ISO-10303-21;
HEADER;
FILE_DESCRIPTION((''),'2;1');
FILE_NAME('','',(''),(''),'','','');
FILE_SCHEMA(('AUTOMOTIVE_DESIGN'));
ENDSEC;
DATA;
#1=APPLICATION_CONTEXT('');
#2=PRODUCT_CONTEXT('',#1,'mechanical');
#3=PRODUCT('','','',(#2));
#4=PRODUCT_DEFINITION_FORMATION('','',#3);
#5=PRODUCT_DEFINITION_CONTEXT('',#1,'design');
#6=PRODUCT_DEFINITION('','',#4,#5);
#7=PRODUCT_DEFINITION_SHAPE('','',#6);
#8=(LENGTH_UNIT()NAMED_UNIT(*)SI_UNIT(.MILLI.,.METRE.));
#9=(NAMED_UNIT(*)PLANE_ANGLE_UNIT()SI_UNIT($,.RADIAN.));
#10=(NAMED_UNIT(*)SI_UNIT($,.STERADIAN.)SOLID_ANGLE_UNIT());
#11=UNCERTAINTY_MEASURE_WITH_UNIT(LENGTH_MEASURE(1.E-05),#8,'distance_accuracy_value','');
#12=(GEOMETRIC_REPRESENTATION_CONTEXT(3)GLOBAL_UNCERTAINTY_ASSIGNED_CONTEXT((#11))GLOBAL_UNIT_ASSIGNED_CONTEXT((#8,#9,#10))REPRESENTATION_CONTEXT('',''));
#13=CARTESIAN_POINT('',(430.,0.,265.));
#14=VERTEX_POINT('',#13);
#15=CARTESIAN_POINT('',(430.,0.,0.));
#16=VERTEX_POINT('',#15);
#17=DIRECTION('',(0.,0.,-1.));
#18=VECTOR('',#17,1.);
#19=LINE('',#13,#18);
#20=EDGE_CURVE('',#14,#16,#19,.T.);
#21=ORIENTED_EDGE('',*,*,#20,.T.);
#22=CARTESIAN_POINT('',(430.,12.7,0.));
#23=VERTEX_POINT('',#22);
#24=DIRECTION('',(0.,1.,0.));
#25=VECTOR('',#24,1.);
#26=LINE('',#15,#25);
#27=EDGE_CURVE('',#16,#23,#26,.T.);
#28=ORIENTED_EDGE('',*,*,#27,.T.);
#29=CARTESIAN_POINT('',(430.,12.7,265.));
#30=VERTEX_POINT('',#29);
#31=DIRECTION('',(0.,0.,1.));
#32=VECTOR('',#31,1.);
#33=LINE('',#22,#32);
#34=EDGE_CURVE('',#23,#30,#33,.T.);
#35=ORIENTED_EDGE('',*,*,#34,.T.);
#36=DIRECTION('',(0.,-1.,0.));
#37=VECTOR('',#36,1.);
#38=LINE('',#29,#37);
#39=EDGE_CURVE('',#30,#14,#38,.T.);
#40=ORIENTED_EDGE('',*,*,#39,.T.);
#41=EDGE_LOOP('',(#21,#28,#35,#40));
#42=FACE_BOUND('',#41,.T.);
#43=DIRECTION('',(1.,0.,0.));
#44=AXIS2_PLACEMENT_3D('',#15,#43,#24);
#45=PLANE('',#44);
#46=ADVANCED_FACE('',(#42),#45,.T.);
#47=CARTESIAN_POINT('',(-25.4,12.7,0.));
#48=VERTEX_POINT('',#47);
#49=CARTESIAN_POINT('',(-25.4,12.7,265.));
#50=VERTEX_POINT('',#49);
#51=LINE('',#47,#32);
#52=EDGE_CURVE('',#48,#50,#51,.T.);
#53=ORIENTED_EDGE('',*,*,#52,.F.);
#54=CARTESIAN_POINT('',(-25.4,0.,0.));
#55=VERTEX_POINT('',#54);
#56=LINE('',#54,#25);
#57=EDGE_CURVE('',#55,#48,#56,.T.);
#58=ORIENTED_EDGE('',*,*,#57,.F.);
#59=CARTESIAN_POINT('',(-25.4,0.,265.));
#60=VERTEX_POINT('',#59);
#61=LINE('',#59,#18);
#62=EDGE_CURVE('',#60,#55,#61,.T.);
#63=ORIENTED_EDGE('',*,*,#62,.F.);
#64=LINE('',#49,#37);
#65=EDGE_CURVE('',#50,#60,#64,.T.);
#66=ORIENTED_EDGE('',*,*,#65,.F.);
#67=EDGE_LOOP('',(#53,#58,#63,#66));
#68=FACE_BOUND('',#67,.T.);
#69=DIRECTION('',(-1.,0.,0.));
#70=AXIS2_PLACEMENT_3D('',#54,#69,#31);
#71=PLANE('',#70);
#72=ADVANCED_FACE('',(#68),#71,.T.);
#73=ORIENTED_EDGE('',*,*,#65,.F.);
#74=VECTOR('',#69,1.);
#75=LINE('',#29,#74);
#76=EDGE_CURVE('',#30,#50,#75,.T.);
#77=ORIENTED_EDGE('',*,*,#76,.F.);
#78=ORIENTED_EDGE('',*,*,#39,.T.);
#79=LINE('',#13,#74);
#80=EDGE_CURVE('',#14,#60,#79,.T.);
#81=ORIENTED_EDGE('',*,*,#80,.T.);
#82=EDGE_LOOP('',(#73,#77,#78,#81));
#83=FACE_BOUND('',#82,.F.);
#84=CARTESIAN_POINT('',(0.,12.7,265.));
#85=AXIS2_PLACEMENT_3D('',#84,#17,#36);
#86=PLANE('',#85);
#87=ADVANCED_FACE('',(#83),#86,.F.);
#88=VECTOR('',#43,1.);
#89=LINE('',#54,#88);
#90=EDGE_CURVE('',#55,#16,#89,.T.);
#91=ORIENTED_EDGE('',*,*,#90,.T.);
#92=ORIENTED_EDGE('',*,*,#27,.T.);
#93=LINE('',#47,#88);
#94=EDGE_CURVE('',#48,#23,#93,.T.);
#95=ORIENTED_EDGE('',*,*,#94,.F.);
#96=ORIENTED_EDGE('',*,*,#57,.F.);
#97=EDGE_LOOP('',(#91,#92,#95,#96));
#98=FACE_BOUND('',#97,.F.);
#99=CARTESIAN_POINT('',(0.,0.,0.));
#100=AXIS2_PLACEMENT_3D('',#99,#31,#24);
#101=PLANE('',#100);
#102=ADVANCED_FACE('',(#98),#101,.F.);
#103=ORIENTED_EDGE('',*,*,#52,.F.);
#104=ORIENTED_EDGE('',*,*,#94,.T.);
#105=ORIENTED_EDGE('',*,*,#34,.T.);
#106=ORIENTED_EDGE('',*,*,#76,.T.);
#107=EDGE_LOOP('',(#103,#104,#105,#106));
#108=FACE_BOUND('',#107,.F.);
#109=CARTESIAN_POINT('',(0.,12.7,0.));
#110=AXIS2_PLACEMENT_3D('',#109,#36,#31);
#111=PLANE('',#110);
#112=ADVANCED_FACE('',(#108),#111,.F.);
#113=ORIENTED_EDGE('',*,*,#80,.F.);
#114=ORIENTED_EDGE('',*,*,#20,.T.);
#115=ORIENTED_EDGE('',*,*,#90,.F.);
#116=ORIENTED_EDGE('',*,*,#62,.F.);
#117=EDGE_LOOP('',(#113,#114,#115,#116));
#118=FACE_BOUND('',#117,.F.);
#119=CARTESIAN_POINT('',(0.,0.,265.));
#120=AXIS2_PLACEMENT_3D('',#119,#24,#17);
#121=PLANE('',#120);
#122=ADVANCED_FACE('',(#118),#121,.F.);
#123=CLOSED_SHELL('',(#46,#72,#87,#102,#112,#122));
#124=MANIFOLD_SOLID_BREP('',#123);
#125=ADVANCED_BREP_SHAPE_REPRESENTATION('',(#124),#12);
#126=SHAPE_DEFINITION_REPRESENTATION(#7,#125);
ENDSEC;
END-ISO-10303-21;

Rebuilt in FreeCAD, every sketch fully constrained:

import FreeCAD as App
import Part
import Sketcher

V = App.Vector
Q = App.Units.Quantity


def add_polygon(sketch, points):
    """Adds a closed chain of lines whose ends are joined by coincident constraints."""
    first, n = sketch.GeometryCount, len(points)
    for a, b in zip(points, points[1:] + points[:1]):
        sketch.addGeometry(Part.LineSegment(App.Vector(*a, 0), App.Vector(*b, 0)), False)
    for i in range(n):
        sketch.addConstraint(Sketcher.Constraint("Coincident", first + i, 2, first + (i + 1) % n, 1))

doc = App.newDocument("Part")
body = doc.addObject("PartDesign::Body", "Body")

# Sketch on YZ plane
sketch1 = body.newObject("Sketcher::SketchObject", "Sketch")
sketch1.AttachmentSupport = (doc.getObject("YZ_Plane"), [""])
sketch1.MapMode = "FlatFace"
add_polygon(sketch1, [(0, 265), (0, 0), (13, 0), (13, 265)])  # lines 0-3
sketch1.addConstraint(Sketcher.Constraint("Vertical", 0))
sketch1.addConstraint(Sketcher.Constraint("Horizontal", 1))
sketch1.addConstraint(Sketcher.Constraint("Vertical", 2))
sketch1.addConstraint(Sketcher.Constraint("Horizontal", 3))
sketch1.addConstraint(Sketcher.Constraint("Coincident", 0, 2, -1, 1))
sketch1.addConstraint(Sketcher.Constraint("DistanceY", 0, 2, 0, 1, Q("265 mm")))
sketch1.addConstraint(Sketcher.Constraint("DistanceX", 1, 1, 1, 2, Q("12.7 mm")))
pad1 = body.newObject("PartDesign::Pad", "Pad")
pad1.Profile = sketch1
pad1.Length = 430

# Sketch on YZ plane
sketch2 = body.newObject("Sketcher::SketchObject", "Sketch001")
sketch2.AttachmentSupport = (doc.getObject("YZ_Plane"), [""])
sketch2.MapMode = "FlatFace"
add_polygon(sketch2, [(13, 265), (13, 0), (0, 0), (0, 265)])  # lines 0-3
sketch2.addConstraint(Sketcher.Constraint("Vertical", 0))
sketch2.addConstraint(Sketcher.Constraint("Horizontal", 1))
sketch2.addConstraint(Sketcher.Constraint("Vertical", 2))
sketch2.addConstraint(Sketcher.Constraint("Horizontal", 3))
sketch2.addConstraint(Sketcher.Constraint("Coincident", 1, 2, -1, 1))
sketch2.addConstraint(Sketcher.Constraint("DistanceY", 0, 2, 0, 1, Q("265 mm")))
sketch2.addConstraint(Sketcher.Constraint("DistanceX", 1, 2, 1, 1, Q("12.7 mm")))
pad2 = body.newObject("PartDesign::Pad", "Pad001")
pad2.Profile = sketch2
pad2.Length = 25.4
pad2.Reversed = True

doc.recompute()
